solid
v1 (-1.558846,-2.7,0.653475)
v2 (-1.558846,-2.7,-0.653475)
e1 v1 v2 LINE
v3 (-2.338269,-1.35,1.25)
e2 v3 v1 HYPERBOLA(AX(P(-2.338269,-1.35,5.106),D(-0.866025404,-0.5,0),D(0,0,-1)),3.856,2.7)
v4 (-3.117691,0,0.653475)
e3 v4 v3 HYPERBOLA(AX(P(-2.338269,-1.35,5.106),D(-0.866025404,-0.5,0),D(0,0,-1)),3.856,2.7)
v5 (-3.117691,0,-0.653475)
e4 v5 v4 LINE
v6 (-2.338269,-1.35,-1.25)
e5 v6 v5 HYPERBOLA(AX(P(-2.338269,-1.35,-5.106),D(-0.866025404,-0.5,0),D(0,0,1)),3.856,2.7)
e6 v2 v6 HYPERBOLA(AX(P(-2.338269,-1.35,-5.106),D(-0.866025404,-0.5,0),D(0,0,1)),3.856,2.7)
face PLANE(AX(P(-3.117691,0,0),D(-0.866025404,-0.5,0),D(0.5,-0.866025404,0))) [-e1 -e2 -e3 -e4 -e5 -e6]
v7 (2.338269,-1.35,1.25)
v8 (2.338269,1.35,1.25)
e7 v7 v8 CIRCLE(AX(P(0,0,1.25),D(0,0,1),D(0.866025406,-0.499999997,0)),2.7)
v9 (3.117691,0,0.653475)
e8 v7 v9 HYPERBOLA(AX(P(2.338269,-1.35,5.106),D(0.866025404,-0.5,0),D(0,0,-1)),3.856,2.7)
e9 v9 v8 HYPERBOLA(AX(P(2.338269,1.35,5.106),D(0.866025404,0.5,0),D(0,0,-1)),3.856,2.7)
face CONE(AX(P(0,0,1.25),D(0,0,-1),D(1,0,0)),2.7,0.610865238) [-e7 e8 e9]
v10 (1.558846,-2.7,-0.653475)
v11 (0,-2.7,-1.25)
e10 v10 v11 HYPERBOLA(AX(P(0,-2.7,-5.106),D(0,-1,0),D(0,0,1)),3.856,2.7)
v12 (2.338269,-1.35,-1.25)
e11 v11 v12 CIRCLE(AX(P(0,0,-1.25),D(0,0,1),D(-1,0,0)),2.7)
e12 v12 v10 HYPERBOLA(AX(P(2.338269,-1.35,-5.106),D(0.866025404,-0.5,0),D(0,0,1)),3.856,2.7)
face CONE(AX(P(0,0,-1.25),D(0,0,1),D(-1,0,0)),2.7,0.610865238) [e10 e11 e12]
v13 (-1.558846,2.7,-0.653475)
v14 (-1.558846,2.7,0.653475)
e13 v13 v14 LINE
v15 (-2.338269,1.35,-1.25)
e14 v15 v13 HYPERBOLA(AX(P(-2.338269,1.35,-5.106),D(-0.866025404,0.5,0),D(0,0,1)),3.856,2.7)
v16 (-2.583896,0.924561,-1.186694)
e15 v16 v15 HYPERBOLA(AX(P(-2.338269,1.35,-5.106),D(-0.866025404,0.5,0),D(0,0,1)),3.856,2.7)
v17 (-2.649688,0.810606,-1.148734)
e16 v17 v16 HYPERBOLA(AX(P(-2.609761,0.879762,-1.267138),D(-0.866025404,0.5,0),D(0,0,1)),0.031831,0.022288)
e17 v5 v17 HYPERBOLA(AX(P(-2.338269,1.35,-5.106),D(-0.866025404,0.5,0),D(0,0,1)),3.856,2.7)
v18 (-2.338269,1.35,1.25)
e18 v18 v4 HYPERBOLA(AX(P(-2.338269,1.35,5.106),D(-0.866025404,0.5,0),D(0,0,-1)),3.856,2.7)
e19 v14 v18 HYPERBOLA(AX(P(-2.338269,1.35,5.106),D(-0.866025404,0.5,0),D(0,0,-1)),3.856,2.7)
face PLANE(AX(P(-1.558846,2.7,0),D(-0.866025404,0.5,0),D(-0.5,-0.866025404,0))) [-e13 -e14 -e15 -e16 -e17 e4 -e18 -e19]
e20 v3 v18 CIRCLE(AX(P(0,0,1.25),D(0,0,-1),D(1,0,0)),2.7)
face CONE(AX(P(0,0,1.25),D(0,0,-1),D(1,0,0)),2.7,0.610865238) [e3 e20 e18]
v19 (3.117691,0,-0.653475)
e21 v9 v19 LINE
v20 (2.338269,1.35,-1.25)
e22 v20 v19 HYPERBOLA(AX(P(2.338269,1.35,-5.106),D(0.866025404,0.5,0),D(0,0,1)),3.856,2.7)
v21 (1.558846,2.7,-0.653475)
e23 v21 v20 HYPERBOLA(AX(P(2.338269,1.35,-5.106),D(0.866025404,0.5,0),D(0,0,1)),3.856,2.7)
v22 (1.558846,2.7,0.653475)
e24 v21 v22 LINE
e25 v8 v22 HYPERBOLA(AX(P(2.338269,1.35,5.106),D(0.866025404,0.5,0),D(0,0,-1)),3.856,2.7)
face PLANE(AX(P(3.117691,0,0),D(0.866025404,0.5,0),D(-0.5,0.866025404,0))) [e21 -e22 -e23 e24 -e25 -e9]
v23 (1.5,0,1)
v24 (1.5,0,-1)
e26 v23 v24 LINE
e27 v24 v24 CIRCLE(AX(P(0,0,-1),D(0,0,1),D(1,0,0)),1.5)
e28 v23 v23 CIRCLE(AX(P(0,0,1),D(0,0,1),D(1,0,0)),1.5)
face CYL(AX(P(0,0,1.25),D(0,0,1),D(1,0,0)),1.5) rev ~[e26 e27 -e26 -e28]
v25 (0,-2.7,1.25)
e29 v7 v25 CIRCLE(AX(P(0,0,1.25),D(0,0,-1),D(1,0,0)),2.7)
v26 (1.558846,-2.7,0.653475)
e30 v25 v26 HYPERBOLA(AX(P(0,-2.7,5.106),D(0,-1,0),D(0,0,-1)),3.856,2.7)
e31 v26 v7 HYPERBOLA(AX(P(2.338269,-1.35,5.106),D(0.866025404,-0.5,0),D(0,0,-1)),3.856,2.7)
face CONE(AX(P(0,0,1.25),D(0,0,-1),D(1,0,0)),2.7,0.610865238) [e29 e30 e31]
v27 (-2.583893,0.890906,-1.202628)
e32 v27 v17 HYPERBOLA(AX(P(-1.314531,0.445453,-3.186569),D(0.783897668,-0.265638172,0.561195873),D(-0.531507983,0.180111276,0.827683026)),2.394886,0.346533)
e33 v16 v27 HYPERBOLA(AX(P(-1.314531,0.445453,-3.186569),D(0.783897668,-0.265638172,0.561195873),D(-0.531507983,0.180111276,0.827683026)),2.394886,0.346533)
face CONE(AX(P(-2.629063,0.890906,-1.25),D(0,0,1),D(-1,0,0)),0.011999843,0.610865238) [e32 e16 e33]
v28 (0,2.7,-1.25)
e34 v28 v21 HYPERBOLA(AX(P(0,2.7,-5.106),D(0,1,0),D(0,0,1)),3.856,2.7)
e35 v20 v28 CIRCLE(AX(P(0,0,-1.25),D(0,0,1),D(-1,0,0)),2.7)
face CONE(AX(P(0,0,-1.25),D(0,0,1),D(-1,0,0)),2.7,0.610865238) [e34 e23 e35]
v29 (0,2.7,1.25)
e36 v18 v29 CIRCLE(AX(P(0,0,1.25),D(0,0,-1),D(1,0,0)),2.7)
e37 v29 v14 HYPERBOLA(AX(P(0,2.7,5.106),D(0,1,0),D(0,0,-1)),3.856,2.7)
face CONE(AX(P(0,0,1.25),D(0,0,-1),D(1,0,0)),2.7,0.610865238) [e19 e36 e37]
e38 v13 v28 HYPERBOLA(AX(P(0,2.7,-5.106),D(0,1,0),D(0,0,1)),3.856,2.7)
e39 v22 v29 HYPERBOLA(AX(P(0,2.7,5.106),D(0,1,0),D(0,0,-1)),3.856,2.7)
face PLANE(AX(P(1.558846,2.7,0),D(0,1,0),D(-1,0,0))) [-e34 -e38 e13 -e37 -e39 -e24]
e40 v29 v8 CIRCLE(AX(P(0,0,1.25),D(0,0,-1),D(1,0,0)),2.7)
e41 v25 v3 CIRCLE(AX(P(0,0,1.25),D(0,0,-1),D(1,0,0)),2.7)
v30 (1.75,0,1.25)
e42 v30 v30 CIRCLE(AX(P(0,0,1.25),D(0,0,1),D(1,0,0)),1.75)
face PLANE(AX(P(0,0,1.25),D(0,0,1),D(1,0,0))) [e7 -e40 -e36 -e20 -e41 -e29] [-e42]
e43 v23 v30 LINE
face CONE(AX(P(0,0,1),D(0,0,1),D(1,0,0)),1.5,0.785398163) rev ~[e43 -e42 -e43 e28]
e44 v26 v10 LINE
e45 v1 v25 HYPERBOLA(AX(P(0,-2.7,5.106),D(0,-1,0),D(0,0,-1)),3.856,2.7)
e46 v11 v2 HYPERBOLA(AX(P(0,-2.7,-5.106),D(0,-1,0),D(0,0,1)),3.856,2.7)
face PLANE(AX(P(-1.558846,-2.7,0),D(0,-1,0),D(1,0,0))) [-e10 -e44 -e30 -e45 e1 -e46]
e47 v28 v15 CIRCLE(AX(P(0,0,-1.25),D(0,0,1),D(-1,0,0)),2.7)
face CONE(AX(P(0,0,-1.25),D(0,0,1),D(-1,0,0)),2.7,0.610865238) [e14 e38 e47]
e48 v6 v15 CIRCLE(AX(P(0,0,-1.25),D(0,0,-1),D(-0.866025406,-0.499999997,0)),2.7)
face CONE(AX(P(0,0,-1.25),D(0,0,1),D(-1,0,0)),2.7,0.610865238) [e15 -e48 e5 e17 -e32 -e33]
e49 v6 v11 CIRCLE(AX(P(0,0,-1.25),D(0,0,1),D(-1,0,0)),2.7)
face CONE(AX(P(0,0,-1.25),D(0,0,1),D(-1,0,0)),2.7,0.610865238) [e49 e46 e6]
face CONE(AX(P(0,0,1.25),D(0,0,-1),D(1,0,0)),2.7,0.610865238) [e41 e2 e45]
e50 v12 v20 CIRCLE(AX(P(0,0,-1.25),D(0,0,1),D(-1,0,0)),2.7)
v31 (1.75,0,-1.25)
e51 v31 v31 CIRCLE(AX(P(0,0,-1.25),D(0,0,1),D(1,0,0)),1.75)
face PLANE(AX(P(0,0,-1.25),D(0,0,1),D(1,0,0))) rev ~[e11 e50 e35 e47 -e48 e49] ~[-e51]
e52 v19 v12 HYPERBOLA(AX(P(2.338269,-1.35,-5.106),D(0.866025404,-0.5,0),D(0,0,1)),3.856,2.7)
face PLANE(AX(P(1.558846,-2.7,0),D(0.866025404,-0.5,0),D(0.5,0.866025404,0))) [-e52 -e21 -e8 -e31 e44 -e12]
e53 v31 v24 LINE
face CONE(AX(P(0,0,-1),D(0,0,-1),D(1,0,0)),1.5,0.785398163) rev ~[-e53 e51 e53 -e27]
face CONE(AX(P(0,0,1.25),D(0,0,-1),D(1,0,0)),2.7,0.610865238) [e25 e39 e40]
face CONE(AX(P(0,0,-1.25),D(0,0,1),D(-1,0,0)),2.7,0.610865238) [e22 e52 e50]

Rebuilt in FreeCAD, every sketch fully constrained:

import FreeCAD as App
import Part
import Sketcher
Q = App.Units.Quantity


def edges_at(feature, points):
    """Names of the edges that pass closest to the given points."""
    edges = feature.Shape.Edges
    near = lambda p: min(range(len(edges)), key=lambda i: edges[i].distToShape(Part.Vertex(*p))[0])
    return sorted({f"Edge{near(p) + 1}" for p in points})


def add_polygon(sketch, points):
    """Adds a closed chain of lines whose ends are joined by coincident constraints."""
    first, n = sketch.GeometryCount, len(points)
    for a, b in zip(points, points[1:] + points[:1]):
        sketch.addGeometry(Part.LineSegment(App.Vector(*a, 0), App.Vector(*b, 0)), False)
    for i in range(n):
        sketch.addConstraint(Sketcher.Constraint("Coincident", first + i, 2, first + (i + 1) % n, 1))

doc = App.newDocument("Part")
body = doc.addObject("PartDesign::Body", "Body")

sketch1 = body.newObject("Sketcher::SketchObject", "Sketch")
sketch1.AttachmentSupport = (doc.getObject("XY_Plane"), [""])
sketch1.MapMode = "FlatFace"
add_polygon(sketch1, [(3.117691, 0), (1.558846, 2.7), (-1.558846, 2.7), (-3.117691, 0), (-1.558846, -2.7), (1.558846, -2.7)])
sketch1.addConstraint([
    Sketcher.Constraint("Horizontal", 1),
    Sketcher.Constraint("Horizontal", 4),
    Sketcher.Constraint("Symmetric", 0, 2, 3, 2, -1, 1),
    Sketcher.Constraint("Symmetric", 2, 2, 5, 2, -1, 1),
    Sketcher.Constraint("PointOnObject", 2, 2, -1),
    Sketcher.Constraint("Parallel", 2, 5),
    Sketcher.Constraint("Vertical", 1, 2, 3, 2),
    Sketcher.Constraint("Angle", 0, Q("120 deg")),
    Sketcher.Constraint("DistanceY", -1, 1, 0, 2, Q("2.7 mm")),
    Sketcher.Constraint("DistanceX", 1, 2, 1, 1, Q("3.117691 mm")),
])
pad1 = body.newObject("PartDesign::Pad", "Pad")
pad1.Profile = sketch1
pad1.Length = 2.5
pad1.Midplane = True

sketch2 = body.newObject("Sketcher::SketchObject", "Sketch001")
sketch2.AttachmentSupport = (doc.getObject("XY_Plane"), [""])
sketch2.MapMode = "FlatFace"
sketch2.AttachmentOffset = App.Placement(App.Vector(0, 0, 1.25), App.Rotation())
sketch2.addGeometry(Part.Circle(App.Vector(0, 0, 0), App.Vector(0, 0, 1), 1.5), False)
sketch2.addConstraint([
    Sketcher.Constraint("Coincident", 0, 3, -1, 1),
    Sketcher.Constraint("Diameter", 0, Q("3 mm")),
])
pocket1 = body.newObject("PartDesign::Pocket", "Pocket")
pocket1.Profile = sketch2
pocket1.Type = "ThroughAll"

sketch3 = body.newObject("Sketcher::SketchObject", "Sketch002")
sketch3.AttachmentSupport = (doc.getObject("XY_Plane"), [""])
sketch3.MapMode = "FlatFace"
sketch3.AttachmentOffset = App.Placement(App.Vector(0, 0, 1.25), App.Rotation())
add_polygon(sketch3, [(-7.431, 7.013), (-7.431, -7.013), (7.431, -7.013), (7.431, 7.013)])
sketch3.addGeometry(Part.Circle(App.Vector(0, 0, 0), App.Vector(0, 0, 1), 2.7), False)
sketch3.addConstraint([
    Sketcher.Constraint("Vertical", 0),
    Sketcher.Constraint("Horizontal", 1),
    Sketcher.Constraint("Vertical", 2),
    Sketcher.Constraint("Horizontal", 3),
    Sketcher.Constraint("Coincident", 4, 3, -1, 1),
    Sketcher.Constraint("Symmetric", 0, 2, 2, 2, -1, 1),
    Sketcher.Constraint("Diameter", 4, Q("5.4 mm")),
    Sketcher.Constraint("DistanceX", 1, 1, 1, 2, Q("14.862 mm")),
    Sketcher.Constraint("DistanceY", 0, 2, 0, 1, Q("14.026 mm")),
])
pocket2 = body.newObject("PartDesign::Pocket", "Pocket001")
pocket2.Profile = sketch3
pocket2.Length = 3.5
pocket2.TaperAngle = 35

sketch4 = body.newObject("Sketcher::SketchObject", "Sketch003")
sketch4.AttachmentSupport = (doc.getObject("XY_Plane"), [""])
sketch4.MapMode = "FlatFace"
sketch4.AttachmentOffset = App.Placement(App.Vector(0, 0, 1.25), App.Rotation())
add_polygon(sketch4, [(-7.431, 7.013), (-7.431, -7.013), (7.431, -7.013), (7.431, 7.013)])
sketch4.addGeometry(Part.Circle(App.Vector(0, 0, 0), App.Vector(0, 0, 1), 2.7), False)
sketch4.addConstraint([
    Sketcher.Constraint("Vertical", 0),
    Sketcher.Constraint("Horizontal", 1),
    Sketcher.Constraint("Vertical", 2),
    Sketcher.Constraint("Horizontal", 3),
    Sketcher.Constraint("Coincident", 4, 3, -1, 1),
    Sketcher.Constraint("Symmetric", 0, 2, 2, 2, -1, 1),
    Sketcher.Constraint("Diameter", 4, Q("5.4 mm")),
    Sketcher.Constraint("DistanceX", 1, 1, 1, 2, Q("14.862 mm")),
    Sketcher.Constraint("DistanceY", 0, 2, 0, 1, Q("14.026 mm")),
])
pocket3 = body.newObject("PartDesign::Pocket", "Pocket002")
pocket3.Profile = sketch4
pocket3.Length = 1
pocket3.Reversed = True

sketch5 = body.newObject("Sketcher::SketchObject", "Sketch004")
sketch5.AttachmentSupport = (doc.getObject("XY_Plane"), [""])
sketch5.MapMode = "FlatFace"
sketch5.AttachmentOffset = App.Placement(App.Vector(0, 0, -1.25), App.Rotation())
add_polygon(sketch5, [(6.73, 6.312), (6.73, -6.312), (-6.73, -6.312), (-6.73, 6.312)])
sketch5.addGeometry(Part.Circle(App.Vector(0, 0, 0), App.Vector(0, 0, 1), 2.7), False)
sketch5.addGeometry(Part.Circle(App.Vector(-2.629063, 0.890906, 0), App.Vector(0, 0, 1), 0.012), False)
sketch5.addConstraint([
    Sketcher.Constraint("Vertical", 0),
    Sketcher.Constraint("Horizontal", 1),
    Sketcher.Constraint("Vertical", 2),
    Sketcher.Constraint("Horizontal", 3),
    Sketcher.Constraint("Coincident", 4, 3, -1, 1),
    Sketcher.Constraint("Symmetric", 0, 2, 2, 2, -1, 1),
    Sketcher.Constraint("Diameter", 4, Q("5.4 mm")),
    Sketcher.Constraint("Diameter", 5, Q("0.024 mm")),
    Sketcher.Constraint("DistanceX", 1, 2, 1, 1, Q("13.46 mm")),
    Sketcher.Constraint("DistanceY", 0, 2, 0, 1, Q("12.624 mm")),
    Sketcher.Constraint("DistanceX", 5, 3, -1, 1, Q("2.629063 mm")),
    Sketcher.Constraint("DistanceY", -1, 1, 5, 3, Q("0.890906 mm")),
])
pocket4 = body.newObject("PartDesign::Pocket", "Pocket003")
pocket4.Profile = sketch5
pocket4.Length = 2.5
pocket4.Reversed = True
pocket4.TaperAngle = 35
doc.recompute()

chamfer = body.newObject("PartDesign::Chamfer", "Chamfer")
chamfer.Base = (pocket4, edges_at(pocket4, [(-1.5, 0, -1.25), (-1.5, 0, 1.25)]))
chamfer.Size = 0.25

doc.recompute()
